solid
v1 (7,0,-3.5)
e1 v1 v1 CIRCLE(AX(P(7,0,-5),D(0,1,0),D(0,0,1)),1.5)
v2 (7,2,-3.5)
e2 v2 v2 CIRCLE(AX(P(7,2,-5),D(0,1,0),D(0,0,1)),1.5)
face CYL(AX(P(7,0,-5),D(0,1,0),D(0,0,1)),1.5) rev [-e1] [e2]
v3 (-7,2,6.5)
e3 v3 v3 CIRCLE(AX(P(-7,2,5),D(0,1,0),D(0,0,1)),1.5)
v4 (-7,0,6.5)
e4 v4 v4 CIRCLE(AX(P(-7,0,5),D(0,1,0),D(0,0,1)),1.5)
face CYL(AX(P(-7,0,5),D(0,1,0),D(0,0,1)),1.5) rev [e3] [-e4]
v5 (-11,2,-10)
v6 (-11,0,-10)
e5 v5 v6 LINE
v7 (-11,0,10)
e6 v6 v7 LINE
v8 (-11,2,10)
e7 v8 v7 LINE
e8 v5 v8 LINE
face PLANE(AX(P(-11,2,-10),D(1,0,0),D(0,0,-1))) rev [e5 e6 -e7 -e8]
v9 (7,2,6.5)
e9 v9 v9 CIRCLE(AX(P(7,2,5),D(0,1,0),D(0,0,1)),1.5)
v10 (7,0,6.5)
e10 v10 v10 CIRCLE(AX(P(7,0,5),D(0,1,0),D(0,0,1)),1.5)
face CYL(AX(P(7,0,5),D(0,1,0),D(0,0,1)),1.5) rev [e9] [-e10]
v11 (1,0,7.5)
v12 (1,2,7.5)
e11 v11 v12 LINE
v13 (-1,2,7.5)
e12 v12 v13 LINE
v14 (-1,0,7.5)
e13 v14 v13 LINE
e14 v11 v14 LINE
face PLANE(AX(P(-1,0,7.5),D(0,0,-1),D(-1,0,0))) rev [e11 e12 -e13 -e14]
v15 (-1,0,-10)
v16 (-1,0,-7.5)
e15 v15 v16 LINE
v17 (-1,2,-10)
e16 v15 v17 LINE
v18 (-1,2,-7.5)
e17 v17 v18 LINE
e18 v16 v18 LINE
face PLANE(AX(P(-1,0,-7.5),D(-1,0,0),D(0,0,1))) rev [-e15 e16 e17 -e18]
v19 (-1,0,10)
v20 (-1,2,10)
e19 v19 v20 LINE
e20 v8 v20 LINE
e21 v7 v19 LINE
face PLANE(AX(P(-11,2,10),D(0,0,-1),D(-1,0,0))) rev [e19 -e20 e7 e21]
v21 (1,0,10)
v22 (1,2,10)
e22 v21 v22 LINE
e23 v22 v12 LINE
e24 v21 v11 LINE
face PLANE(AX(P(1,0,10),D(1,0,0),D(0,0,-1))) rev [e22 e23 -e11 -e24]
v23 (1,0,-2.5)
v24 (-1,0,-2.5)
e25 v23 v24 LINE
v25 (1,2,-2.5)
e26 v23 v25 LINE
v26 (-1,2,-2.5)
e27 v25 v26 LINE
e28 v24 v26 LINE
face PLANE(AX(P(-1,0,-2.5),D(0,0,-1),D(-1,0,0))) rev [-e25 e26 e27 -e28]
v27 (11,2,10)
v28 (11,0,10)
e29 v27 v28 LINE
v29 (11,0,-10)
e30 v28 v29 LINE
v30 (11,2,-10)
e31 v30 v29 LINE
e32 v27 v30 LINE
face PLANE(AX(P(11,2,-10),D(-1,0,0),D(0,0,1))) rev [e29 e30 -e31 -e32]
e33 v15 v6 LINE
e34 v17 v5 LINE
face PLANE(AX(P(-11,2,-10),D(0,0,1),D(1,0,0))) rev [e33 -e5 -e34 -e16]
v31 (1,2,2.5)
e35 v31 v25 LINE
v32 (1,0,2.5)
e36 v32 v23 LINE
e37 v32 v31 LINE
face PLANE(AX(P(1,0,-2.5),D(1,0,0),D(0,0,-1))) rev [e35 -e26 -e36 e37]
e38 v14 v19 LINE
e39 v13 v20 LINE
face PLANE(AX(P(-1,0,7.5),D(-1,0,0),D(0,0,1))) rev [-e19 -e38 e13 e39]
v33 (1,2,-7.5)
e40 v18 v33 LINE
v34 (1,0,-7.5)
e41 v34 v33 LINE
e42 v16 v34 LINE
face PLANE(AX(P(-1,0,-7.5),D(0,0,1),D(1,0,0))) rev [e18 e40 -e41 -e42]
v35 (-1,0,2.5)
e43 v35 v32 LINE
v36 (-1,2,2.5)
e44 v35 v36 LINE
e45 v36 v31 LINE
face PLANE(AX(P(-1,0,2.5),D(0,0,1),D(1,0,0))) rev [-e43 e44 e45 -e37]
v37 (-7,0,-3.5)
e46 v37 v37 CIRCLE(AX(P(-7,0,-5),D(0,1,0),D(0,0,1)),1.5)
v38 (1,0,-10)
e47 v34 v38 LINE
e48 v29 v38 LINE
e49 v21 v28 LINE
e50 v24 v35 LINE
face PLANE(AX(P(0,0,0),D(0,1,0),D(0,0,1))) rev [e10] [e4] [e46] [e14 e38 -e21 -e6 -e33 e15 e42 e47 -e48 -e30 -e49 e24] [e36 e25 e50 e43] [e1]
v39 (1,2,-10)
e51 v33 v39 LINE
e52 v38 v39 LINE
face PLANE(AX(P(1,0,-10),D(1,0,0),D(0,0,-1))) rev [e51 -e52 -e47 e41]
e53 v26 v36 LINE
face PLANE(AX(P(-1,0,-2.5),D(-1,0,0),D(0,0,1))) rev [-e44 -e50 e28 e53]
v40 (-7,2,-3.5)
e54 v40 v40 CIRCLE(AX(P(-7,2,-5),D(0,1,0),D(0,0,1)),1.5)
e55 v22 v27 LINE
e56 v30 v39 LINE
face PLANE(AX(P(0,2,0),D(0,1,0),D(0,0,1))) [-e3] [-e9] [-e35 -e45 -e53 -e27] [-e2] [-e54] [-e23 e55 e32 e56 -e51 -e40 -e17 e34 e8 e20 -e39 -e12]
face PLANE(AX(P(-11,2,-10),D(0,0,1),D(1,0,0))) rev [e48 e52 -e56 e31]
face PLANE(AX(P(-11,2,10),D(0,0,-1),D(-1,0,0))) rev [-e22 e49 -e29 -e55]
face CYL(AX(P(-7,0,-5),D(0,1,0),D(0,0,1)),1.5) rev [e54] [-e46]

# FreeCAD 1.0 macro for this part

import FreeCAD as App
import Part
import Sketcher
from FreeCAD import Vector

doc = App.newDocument("Part")
params = doc.addObject("Spreadsheet::Sheet", "Params")
for row, (alias, value) in enumerate([
    ("sketch1_width", "22 mm"),
    ("sketch1_height", "20 mm"),
    ("pad1_length", "2 mm"),
    ("sketch2_diameter", "3 mm"),
    ("sketch2_width", "2 mm"),
    ("sketch2_height", "5 mm"),
    ("sketch2_height2", "2.5 mm"),
    ("pocket1_length", "2 mm"),
], start=1):
    params.set(f"A{row}", alias)
    params.set(f"B{row}", "=" + value)
    params.setAlias(f"B{row}", alias)

body = doc.addObject("PartDesign::Body", "Body")

# Sketch on XZ plane
sketch1 = body.newObject("Sketcher::SketchObject", "Sketch")
sketch1.AttachmentSupport = (doc.getObject("XZ_Plane"), [""])
sketch1.MapMode = "FlatFace"
sketch1.addGeometry(Part.LineSegment(Vector(-11, -10, 0), Vector(-11, 10, 0)), False)
sketch1.addGeometry(Part.LineSegment(Vector(-11, 10, 0), Vector(11, 10, 0)), False)
sketch1.addGeometry(Part.LineSegment(Vector(11, 10, 0), Vector(11, -10, 0)), False)
sketch1.addGeometry(Part.LineSegment(Vector(11, -10, 0), Vector(-11, -10, 0)), False)
sketch1.addConstraint(Sketcher.Constraint("Coincident", 0, 2, 1, 1))
sketch1.addConstraint(Sketcher.Constraint("Coincident", 1, 2, 2, 1))
sketch1.addConstraint(Sketcher.Constraint("Coincident", 2, 2, 3, 1))
sketch1.addConstraint(Sketcher.Constraint("Coincident", 3, 2, 0, 1))
sketch1.addConstraint(Sketcher.Constraint("Vertical", 0))
sketch1.addConstraint(Sketcher.Constraint("Horizontal", 1))
sketch1.addConstraint(Sketcher.Constraint("Vertical", 2))
sketch1.addConstraint(Sketcher.Constraint("Horizontal", 3))
sketch1.addConstraint(Sketcher.Constraint("Symmetric", 0, 2, 2, 2, -1, 1))
sketch1.addConstraint(Sketcher.Constraint("DistanceX", 1, 1, 1, 2, 22.0))
sketch1.addConstraint(Sketcher.Constraint("DistanceY", 0, 1, 0, 2, 20.0))
sketch1.setExpression("Constraints[9]", "Params.sketch1_width")
sketch1.setExpression("Constraints[10]", "Params.sketch1_height")
pad1 = body.newObject("PartDesign::Pad", "Pad")
pad1.Profile = sketch1
pad1.setExpression("Length", "Params.pad1_length")
pad1.Reversed = True

# Sketch on XZ plane
sketch2 = body.newObject("Sketcher::SketchObject", "Sketch001")
sketch2.AttachmentSupport = (doc.getObject("XZ_Plane"), [""])
sketch2.MapMode = "FlatFace"
sketch2.AttachmentOffset = App.Placement(Vector(0, 0, -2), App.Rotation())
sketch2.addGeometry(Part.Circle(Vector(-7, -5, 0), Vector(0, 0, 1), 1.5), False)
sketch2.addGeometry(Part.Circle(Vector(-7, 5, 0), Vector(0, 0, 1), 1.5), False)
sketch2.addGeometry(Part.Circle(Vector(7, -5, 0), Vector(0, 0, 1), 1.5), False)
sketch2.addGeometry(Part.Circle(Vector(7, 5, 0), Vector(0, 0, 1), 1.5), False)
sketch2.addGeometry(Part.LineSegment(Vector(-1, -10, 0), Vector(-1, -7.5, 0)), False)
sketch2.addGeometry(Part.LineSegment(Vector(-1, -7.5, 0), Vector(1, -7.5, 0)), False)
sketch2.addGeometry(Part.LineSegment(Vector(1, -7.5, 0), Vector(1, -10, 0)), False)
sketch2.addGeometry(Part.LineSegment(Vector(1, -10, 0), Vector(-1, -10, 0)), False)
sketch2.addGeometry(Part.LineSegment(Vector(-1, -2.5, 0), Vector(-1, 2.5, 0)), False)
sketch2.addGeometry(Part.LineSegment(Vector(-1, 2.5, 0), Vector(1, 2.5, 0)), False)
sketch2.addGeometry(Part.LineSegment(Vector(1, 2.5, 0), Vector(1, -2.5, 0)), False)
sketch2.addGeometry(Part.LineSegment(Vector(1, -2.5, 0), Vector(-1, -2.5, 0)), False)
sketch2.addGeometry(Part.LineSegment(Vector(-1, 7.5, 0), Vector(-1, 10, 0)), False)
sketch2.addGeometry(Part.LineSegment(Vector(-1, 10, 0), Vector(1, 10, 0)), False)
sketch2.addGeometry(Part.LineSegment(Vector(1, 10, 0), Vector(1, 7.5, 0)), False)
sketch2.addGeometry(Part.LineSegment(Vector(1, 7.5, 0), Vector(-1, 7.5, 0)), False)
sketch2.addConstraint(Sketcher.Constraint("Coincident", 4, 2, 5, 1))
sketch2.addConstraint(Sketcher.Constraint("Coincident", 5, 2, 6, 1))
sketch2.addConstraint(Sketcher.Constraint("Coincident", 6, 2, 7, 1))
sketch2.addConstraint(Sketcher.Constraint("Coincident", 7, 2, 4, 1))
sketch2.addConstraint(Sketcher.Constraint("Coincident", 8, 2, 9, 1))
sketch2.addConstraint(Sketcher.Constraint("Coincident", 9, 2, 10, 1))
sketch2.addConstraint(Sketcher.Constraint("Coincident", 10, 2, 11, 1))
sketch2.addConstraint(Sketcher.Constraint("Coincident", 11, 2, 8, 1))
sketch2.addConstraint(Sketcher.Constraint("Coincident", 12, 2, 13, 1))
sketch2.addConstraint(Sketcher.Constraint("Coincident", 13, 2, 14, 1))
sketch2.addConstraint(Sketcher.Constraint("Coincident", 14, 2, 15, 1))
sketch2.addConstraint(Sketcher.Constraint("Coincident", 15, 2, 12, 1))
sketch2.addConstraint(Sketcher.Constraint("Vertical", 4))
sketch2.addConstraint(Sketcher.Constraint("Horizontal", 5))
sketch2.addConstraint(Sketcher.Constraint("Vertical", 6))
sketch2.addConstraint(Sketcher.Constraint("Horizontal", 7))
sketch2.addConstraint(Sketcher.Constraint("Vertical", 8))
sketch2.addConstraint(Sketcher.Constraint("Horizontal", 9))
sketch2.addConstraint(Sketcher.Constraint("Vertical", 10))
sketch2.addConstraint(Sketcher.Constraint("Horizontal", 11))
sketch2.addConstraint(Sketcher.Constraint("Vertical", 12))
sketch2.addConstraint(Sketcher.Constraint("Horizontal", 13))
sketch2.addConstraint(Sketcher.Constraint("Vertical", 14))
sketch2.addConstraint(Sketcher.Constraint("Horizontal", 15))
sketch2.addConstraint(Sketcher.Constraint("Equal", 0, 1))
sketch2.addConstraint(Sketcher.Constraint("Equal", 1, 2))
sketch2.addConstraint(Sketcher.Constraint("Equal", 2, 3))
sketch2.addConstraint(Sketcher.Constraint("Symmetric", 1, 3, 2, 3, -1, 1))
sketch2.addConstraint(Sketcher.Constraint("Symmetric", 0, 3, 3, 3, -1, 1))
sketch2.addConstraint(Sketcher.Constraint("Symmetric", 8, 2, 10, 2, -1, 1))
sketch2.addConstraint(Sketcher.Constraint("Symmetric", 6, 2, 12, 2, -1, 1))
sketch2.addConstraint(Sketcher.Constraint("Symmetric", 4, 2, 14, 2, -1, 1))
sketch2.addConstraint(Sketcher.Constraint("Symmetric", 0, 3, 2, 3, -2))
sketch2.addConstraint(Sketcher.Constraint("Vertical", 7, 2, 8, 2))
sketch2.addConstraint(Sketcher.Constraint("Vertical", 6, 2, 9, 2))
sketch2.addConstraint(Sketcher.Constraint("Diameter", 0, 3.0))
sketch2.addConstraint(Sketcher.Constraint("DistanceX", 5, 1, 5, 2, 2.0))
sketch2.addConstraint(Sketcher.Constraint("DistanceY", 8, 1, 8, 2, 5.0))
sketch2.addConstraint(Sketcher.Constraint("DistanceY", 4, 1, 4, 2, 2.5))
sketch2.addConstraint(Sketcher.Constraint("DistanceX", 0, 3, -1, 1, 7.0))
sketch2.addConstraint(Sketcher.Constraint("DistanceY", 0, 3, -1, 1, 5.0))
sketch2.addConstraint(Sketcher.Constraint("DistanceY", 6, 2, -1, 1, 10.0))
sketch2.setExpression("Constraints[35]", "Params.sketch2_diameter")
sketch2.setExpression("Constraints[36]", "Params.sketch2_width")
sketch2.setExpression("Constraints[37]", "Params.sketch2_height")
sketch2.setExpression("Constraints[38]", "Params.sketch2_height2")
pocket1 = body.newObject("PartDesign::Pocket", "Pocket")
pocket1.Profile = sketch2
pocket1.setExpression("Length", "Params.pocket1_length")
pocket1.Reversed = True

doc.recompute()
